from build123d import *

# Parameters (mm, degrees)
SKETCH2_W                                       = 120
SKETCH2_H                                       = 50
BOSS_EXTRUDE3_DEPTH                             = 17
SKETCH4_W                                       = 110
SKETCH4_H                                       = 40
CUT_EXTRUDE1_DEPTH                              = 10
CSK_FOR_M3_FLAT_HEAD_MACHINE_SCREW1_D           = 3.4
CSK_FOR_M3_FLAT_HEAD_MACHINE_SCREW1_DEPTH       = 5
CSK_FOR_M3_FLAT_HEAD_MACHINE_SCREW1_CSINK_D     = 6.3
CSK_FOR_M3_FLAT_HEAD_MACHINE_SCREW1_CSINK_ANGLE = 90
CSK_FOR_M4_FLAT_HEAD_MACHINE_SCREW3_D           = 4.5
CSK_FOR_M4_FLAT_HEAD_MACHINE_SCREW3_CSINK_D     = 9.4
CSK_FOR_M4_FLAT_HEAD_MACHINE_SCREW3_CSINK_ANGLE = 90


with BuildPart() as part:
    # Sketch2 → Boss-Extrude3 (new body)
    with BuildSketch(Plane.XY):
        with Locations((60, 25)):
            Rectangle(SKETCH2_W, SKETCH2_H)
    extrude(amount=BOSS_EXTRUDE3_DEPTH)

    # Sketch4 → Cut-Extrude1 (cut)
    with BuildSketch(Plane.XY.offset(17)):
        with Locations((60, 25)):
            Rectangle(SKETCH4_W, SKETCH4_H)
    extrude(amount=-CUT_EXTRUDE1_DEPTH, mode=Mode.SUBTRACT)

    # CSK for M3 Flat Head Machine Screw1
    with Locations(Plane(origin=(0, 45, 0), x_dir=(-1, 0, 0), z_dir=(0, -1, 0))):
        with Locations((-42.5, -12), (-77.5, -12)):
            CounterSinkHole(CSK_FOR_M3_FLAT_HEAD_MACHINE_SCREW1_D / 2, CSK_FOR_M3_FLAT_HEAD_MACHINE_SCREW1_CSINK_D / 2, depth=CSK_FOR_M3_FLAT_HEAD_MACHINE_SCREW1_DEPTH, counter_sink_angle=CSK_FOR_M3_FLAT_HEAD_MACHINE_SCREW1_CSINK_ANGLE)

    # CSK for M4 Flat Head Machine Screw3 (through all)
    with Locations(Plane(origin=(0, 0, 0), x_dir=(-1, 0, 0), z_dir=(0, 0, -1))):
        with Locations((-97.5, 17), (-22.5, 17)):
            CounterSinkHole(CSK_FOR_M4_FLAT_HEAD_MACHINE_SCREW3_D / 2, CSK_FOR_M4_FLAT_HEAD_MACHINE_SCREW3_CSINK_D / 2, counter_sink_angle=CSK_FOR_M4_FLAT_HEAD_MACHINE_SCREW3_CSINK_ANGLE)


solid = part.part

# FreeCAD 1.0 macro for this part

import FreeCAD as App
import Part
import Sketcher

V = App.Vector

doc = App.newDocument("Part")
body = doc.addObject("PartDesign::Body", "Body")

# Sketch on XY plane
sketch1 = body.newObject("Sketcher::SketchObject", "Sketch")
sketch1.AttachmentSupport = (doc.getObject("XY_Plane"), [""])
sketch1.MapMode = "FlatFace"
sketch1.addGeometry(Part.LineSegment(V(0, 50, 0), V(0, 0, 0)), False)
sketch1.addGeometry(Part.LineSegment(V(0, 0, 0), V(120, 0, 0)), False)
sketch1.addGeometry(Part.LineSegment(V(120, 0, 0), V(120, 50, 0)), False)
sketch1.addGeometry(Part.LineSegment(V(120, 50, 0), V(0, 50, 0)), False)
sketch1.addConstraint(Sketcher.Constraint("Coincident", 0, 2, 1, 1))
sketch1.addConstraint(Sketcher.Constraint("Coincident", 1, 2, 2, 1))
sketch1.addConstraint(Sketcher.Constraint("Coincident", 2, 2, 3, 1))
sketch1.addConstraint(Sketcher.Constraint("Coincident", 3, 2, 0, 1))
sketch1.addConstraint(Sketcher.Constraint("Vertical", 0))
sketch1.addConstraint(Sketcher.Constraint("Horizontal", 1))
sketch1.addConstraint(Sketcher.Constraint("Vertical", 2))
sketch1.addConstraint(Sketcher.Constraint("Horizontal", 3))
sketch1.addConstraint(Sketcher.Constraint("Coincident", 0, 2, -1, 1))
sketch1.addConstraint(Sketcher.Constraint("DistanceX", 1, 1, 1, 2, 120.0))
sketch1.addConstraint(Sketcher.Constraint("DistanceY", 0, 2, 0, 1, 50.0))
pad1 = body.newObject("PartDesign::Pad", "Pad")
pad1.Profile = sketch1
pad1.Length = 17

# Sketch on XY plane
sketch2 = body.newObject("Sketcher::SketchObject", "Sketch001")
sketch2.AttachmentSupport = (doc.getObject("XY_Plane"), [""])
sketch2.MapMode = "FlatFace"
sketch2.AttachmentOffset = App.Placement(V(0, 0, 17), App.Rotation())
sketch2.addGeometry(Part.LineSegment(V(5, 45, 0), V(5, 5, 0)), False)
sketch2.addGeometry(Part.LineSegment(V(5, 5, 0), V(115, 5, 0)), False)
sketch2.addGeometry(Part.LineSegment(V(115, 5, 0), V(115, 45, 0)), False)
sketch2.addGeometry(Part.LineSegment(V(115, 45, 0), V(5, 45, 0)), False)
sketch2.addConstraint(Sketcher.Constraint("Coincident", 0, 2, 1, 1))
sketch2.addConstraint(Sketcher.Constraint("Coincident", 1, 2, 2, 1))
sketch2.addConstraint(Sketcher.Constraint("Coincident", 2, 2, 3, 1))
sketch2.addConstraint(Sketcher.Constraint("Coincident", 3, 2, 0, 1))
sketch2.addConstraint(Sketcher.Constraint("Vertical", 0))
sketch2.addConstraint(Sketcher.Constraint("Horizontal", 1))
sketch2.addConstraint(Sketcher.Constraint("Vertical", 2))
sketch2.addConstraint(Sketcher.Constraint("Horizontal", 3))
sketch2.addConstraint(Sketcher.Constraint("DistanceX", 1, 1, 1, 2, 110.0))
sketch2.addConstraint(Sketcher.Constraint("DistanceY", 0, 2, 0, 1, 40.0))
sketch2.addConstraint(Sketcher.Constraint("DistanceX", -1, 1, 0, 2, 5.0))
sketch2.addConstraint(Sketcher.Constraint("DistanceY", -1, 1, 0, 2, 5.0))
pocket1 = body.newObject("PartDesign::Pocket", "Pocket")
pocket1.Profile = sketch2
pocket1.Length = 10

# Sketch on XZ plane
sketch3 = body.newObject("Sketcher::SketchObject", "Sketch002")
sketch3.AttachmentSupport = (doc.getObject("XZ_Plane"), [""])
sketch3.MapMode = "FlatFace"
sketch3.AttachmentOffset = App.Placement(V(0, 0, -45), App.Rotation())
sketch3.addGeometry(Part.Circle(V(42.5, 12, 0), V(0, 0, 1), 1.7), False)
sketch3.addGeometry(Part.Circle(V(77.5, 12, 0), V(0, 0, 1), 1.7), False)
sketch3.addConstraint(Sketcher.Constraint("Equal", 0, 1))
sketch3.addConstraint(Sketcher.Constraint("Horizontal", 0, 3, 1, 3))
sketch3.addConstraint(Sketcher.Constraint("Diameter", 0, 3.4))
sketch3.addConstraint(Sketcher.Constraint("DistanceY", -1, 1, 0, 3, 12.0))
sketch3.addConstraint(Sketcher.Constraint("DistanceX", 0, 3, 1, 3, 35.0))
sketch3.addConstraint(Sketcher.Constraint("DistanceX", -1, 1, 0, 3, 42.5))
doc.recompute()
hole = body.newObject("PartDesign::Hole", "Hole")
hole.Profile = sketch3
hole.ThreadType = "None"
hole.Diameter = 3.4
hole.DepthType = "Dimension"
hole.Depth = 5
hole.DrillPoint = "Flat"
hole.HoleCutType = "Countersink"
hole.HoleCutDiameter = 6.3
hole.HoleCutCountersinkAngle = 90

# Sketch on XY plane
sketch4 = body.newObject("Sketcher::SketchObject", "Sketch003")
sketch4.AttachmentSupport = (doc.getObject("XY_Plane"), [""])
sketch4.MapMode = "FlatFace"
sketch4.addGeometry(Part.Circle(V(97.5, 17, 0), V(0, 0, 1), 2.25), False)
sketch4.addGeometry(Part.Circle(V(22.5, 17, 0), V(0, 0, 1), 2.25), False)
sketch4.addConstraint(Sketcher.Constraint("Equal", 0, 1))
sketch4.addConstraint(Sketcher.Constraint("Horizontal", 0, 3, 1, 3))
sketch4.addConstraint(Sketcher.Constraint("Diameter", 0, 4.5))
sketch4.addConstraint(Sketcher.Constraint("DistanceY", -1, 1, 0, 3, 17.0))
sketch4.addConstraint(Sketcher.Constraint("DistanceX", 1, 3, 0, 3, 75.0))
sketch4.addConstraint(Sketcher.Constraint("DistanceX", -1, 1, 0, 3, 97.5))
doc.recompute()
hole2 = body.newObject("PartDesign::Hole", "Hole001")
hole2.Profile = sketch4
hole2.ThreadType = "None"
hole2.Diameter = 4.5
hole2.DepthType = "ThroughAll"
hole2.HoleCutType = "Countersink"
hole2.HoleCutDiameter = 9.4
hole2.HoleCutCountersinkAngle = 90
hole2.Reversed = True

doc.recompute()
